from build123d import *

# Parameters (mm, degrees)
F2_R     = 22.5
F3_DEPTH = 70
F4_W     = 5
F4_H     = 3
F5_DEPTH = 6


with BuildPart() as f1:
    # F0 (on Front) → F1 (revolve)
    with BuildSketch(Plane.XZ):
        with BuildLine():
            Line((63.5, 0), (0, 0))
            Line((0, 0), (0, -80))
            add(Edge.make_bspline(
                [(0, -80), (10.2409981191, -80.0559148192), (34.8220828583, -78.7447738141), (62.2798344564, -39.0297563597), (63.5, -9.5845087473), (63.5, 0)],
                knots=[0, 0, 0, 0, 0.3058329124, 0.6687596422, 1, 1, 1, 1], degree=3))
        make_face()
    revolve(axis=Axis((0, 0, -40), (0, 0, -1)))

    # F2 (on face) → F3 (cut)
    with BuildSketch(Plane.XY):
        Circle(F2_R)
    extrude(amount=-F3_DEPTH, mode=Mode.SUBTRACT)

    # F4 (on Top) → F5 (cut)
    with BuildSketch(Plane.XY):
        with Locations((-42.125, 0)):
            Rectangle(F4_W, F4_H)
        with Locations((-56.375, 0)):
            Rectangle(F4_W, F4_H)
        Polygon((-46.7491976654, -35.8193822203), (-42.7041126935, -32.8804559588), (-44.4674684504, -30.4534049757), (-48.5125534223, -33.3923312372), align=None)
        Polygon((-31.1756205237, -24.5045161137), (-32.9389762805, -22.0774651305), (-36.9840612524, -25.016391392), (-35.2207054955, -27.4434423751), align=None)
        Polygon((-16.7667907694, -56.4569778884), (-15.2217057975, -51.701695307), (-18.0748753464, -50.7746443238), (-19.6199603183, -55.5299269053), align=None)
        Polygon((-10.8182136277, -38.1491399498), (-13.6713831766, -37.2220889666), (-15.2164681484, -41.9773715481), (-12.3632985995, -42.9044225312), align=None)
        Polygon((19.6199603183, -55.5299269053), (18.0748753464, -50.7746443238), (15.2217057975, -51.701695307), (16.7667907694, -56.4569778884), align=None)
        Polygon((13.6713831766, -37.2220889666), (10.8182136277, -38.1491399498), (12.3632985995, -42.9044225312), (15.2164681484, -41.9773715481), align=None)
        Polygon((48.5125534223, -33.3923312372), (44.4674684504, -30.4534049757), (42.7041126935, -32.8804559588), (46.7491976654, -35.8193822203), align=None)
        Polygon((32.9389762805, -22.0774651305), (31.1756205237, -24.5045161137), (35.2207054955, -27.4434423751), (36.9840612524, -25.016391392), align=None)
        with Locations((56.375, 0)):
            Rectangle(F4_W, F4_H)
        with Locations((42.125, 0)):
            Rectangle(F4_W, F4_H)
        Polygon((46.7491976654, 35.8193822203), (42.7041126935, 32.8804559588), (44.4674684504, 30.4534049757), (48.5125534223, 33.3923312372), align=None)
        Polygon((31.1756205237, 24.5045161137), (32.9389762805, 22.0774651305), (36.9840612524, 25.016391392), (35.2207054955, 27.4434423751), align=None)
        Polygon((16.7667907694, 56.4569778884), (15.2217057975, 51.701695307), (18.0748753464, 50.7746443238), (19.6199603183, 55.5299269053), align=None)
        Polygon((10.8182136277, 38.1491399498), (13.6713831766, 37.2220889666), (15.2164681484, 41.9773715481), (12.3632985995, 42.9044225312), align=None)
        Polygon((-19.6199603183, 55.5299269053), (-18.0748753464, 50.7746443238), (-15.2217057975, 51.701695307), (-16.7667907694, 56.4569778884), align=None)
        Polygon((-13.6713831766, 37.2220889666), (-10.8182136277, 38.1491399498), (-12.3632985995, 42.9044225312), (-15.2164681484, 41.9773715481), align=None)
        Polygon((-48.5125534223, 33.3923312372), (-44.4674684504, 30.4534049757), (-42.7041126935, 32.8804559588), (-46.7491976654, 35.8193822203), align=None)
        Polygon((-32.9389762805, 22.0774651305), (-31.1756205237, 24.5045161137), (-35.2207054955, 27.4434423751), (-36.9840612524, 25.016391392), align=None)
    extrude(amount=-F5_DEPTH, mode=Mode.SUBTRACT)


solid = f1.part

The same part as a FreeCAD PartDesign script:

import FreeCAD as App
import Part
import Sketcher
Q = App.Units.Quantity

doc = App.newDocument("Part")
body = doc.addObject("PartDesign::Body", "Body")

sketch1 = doc.addObject("Sketcher::SketchObject", "Sketch")
body.addObject(sketch1)
sketch1.AttachmentSupport = (doc.XZ_Plane, [""])
sketch1.MapMode = "FlatFace"
sketch1.addGeometry([
    Part.LineSegment(App.Vector(63.5, 0, 0), App.Vector(0, 0, 0)),
    Part.LineSegment(App.Vector(0, 0, 0), App.Vector(0, -80, 0)),
    Part.BSplineCurve([App.Vector(0, -80, 0), App.Vector(10.240998, -80.055915, 0), App.Vector(34.822083, -78.744774, 0), App.Vector(62.279834, -39.029756, 0), App.Vector(63.5, -9.584509, 0), App.Vector(63.5, 0, 0)], [4, 1, 1, 4], [0, 0.305832912, 0.668759642, 1], False, 3, [1, 1, 1, 1, 1, 1], False),
], False)
sketch1.addConstraint([
    Sketcher.Constraint("Block", 2),
    Sketcher.Constraint("Coincident", 0, 2, 1, 1),
    Sketcher.Constraint("Coincident", 1, 2, 2, 1),
    Sketcher.Constraint("Coincident", 2, 2, 0, 1),
    Sketcher.Constraint("Horizontal", 0),
    Sketcher.Constraint("Vertical", 1),
])
revolution = doc.addObject("PartDesign::Revolution", "Revolution")
body.addObject(revolution)
revolution.Profile = sketch1
revolution.ReferenceAxis = (sketch1, ["V_Axis"])
revolution.Angle = 360

sketch2 = doc.addObject("Sketcher::SketchObject", "Sketch001")
body.addObject(sketch2)
sketch2.AttachmentSupport = (doc.XY_Plane, [""])
sketch2.MapMode = "FlatFace"
sketch2.addGeometry(Part.Circle(App.Vector(0, 0, 0), App.Vector(0, 0, 1), 22), False)
sketch2.addConstraint([
    Sketcher.Constraint("Coincident", 0, 3, -1, 1),
    Sketcher.Constraint("Diameter", 0, Q("45 mm")),
])
pocket1 = doc.addObject("PartDesign::Pocket", "Pocket")
body.addObject(pocket1)
pocket1.Profile = sketch2
pocket1.Length = 70

sketch3 = doc.addObject("Sketcher::SketchObject", "Sketch002")
body.addObject(sketch3)
sketch3.AttachmentSupport = (doc.XY_Plane, [""])
sketch3.MapMode = "FlatFace"
sketch3.addGeometry([
    Part.LineSegment(App.Vector(-44.6, 1.5, 0), App.Vector(-44.6, -1.5, 0)),
    Part.LineSegment(App.Vector(-44.6, -1.5, 0), App.Vector(-39.6, -1.5, 0)),
    Part.LineSegment(App.Vector(-39.6, -1.5, 0), App.Vector(-39.6, 1.5, 0)),
    Part.LineSegment(App.Vector(-39.6, 1.5, 0), App.Vector(-44.6, 1.5, 0)),
    Part.LineSegment(App.Vector(-58.9, 1.5, 0), App.Vector(-58.9, -1.5, 0)),
    Part.LineSegment(App.Vector(-58.9, -1.5, 0), App.Vector(-53.9, -1.5, 0)),
    Part.LineSegment(App.Vector(-53.9, -1.5, 0), App.Vector(-53.9, 1.5, 0)),
    Part.LineSegment(App.Vector(-53.9, 1.5, 0), App.Vector(-58.9, 1.5, 0)),
    Part.LineSegment(App.Vector(-46.7, -35.8, 0), App.Vector(-42.7, -32.9, 0)),
    Part.LineSegment(App.Vector(-42.7, -32.9, 0), App.Vector(-44.5, -30.5, 0)),
    Part.LineSegment(App.Vector(-44.5, -30.5, 0), App.Vector(-48.5, -33.4, 0)),
    Part.LineSegment(App.Vector(-48.5, -33.4, 0), App.Vector(-46.7, -35.8, 0)),
    Part.LineSegment(App.Vector(-31.2, -24.5, 0), App.Vector(-32.9, -22.1, 0)),
    Part.LineSegment(App.Vector(-32.9, -22.1, 0), App.Vector(-37, -25, 0)),
    Part.LineSegment(App.Vector(-37, -25, 0), App.Vector(-35.2, -27.4, 0)),
    Part.LineSegment(App.Vector(-35.2, -27.4, 0), App.Vector(-31.2, -24.5, 0)),
    Part.LineSegment(App.Vector(-16.8, -56.5, 0), App.Vector(-15.2, -51.7, 0)),
    Part.LineSegment(App.Vector(-15.2, -51.7, 0), App.Vector(-18.1, -50.8, 0)),
    Part.LineSegment(App.Vector(-18.1, -50.8, 0), App.Vector(-19.6, -55.5, 0)),
    Part.LineSegment(App.Vector(-19.6, -55.5, 0), App.Vector(-16.8, -56.5, 0)),
    Part.LineSegment(App.Vector(-10.8, -38.1, 0), App.Vector(-13.7, -37.2, 0)),
    Part.LineSegment(App.Vector(-13.7, -37.2, 0), App.Vector(-15.2, -42, 0)),
    Part.LineSegment(App.Vector(-15.2, -42, 0), App.Vector(-12.4, -42.9, 0)),
    Part.LineSegment(App.Vector(-12.4, -42.9, 0), App.Vector(-10.8, -38.1, 0)),
    Part.LineSegment(App.Vector(19.6, -55.5, 0), App.Vector(18.1, -50.8, 0)),
    Part.LineSegment(App.Vector(18.1, -50.8, 0), App.Vector(15.2, -51.7, 0)),
    Part.LineSegment(App.Vector(15.2, -51.7, 0), App.Vector(16.8, -56.5, 0)),
    Part.LineSegment(App.Vector(16.8, -56.5, 0), App.Vector(19.6, -55.5, 0)),
    Part.LineSegment(App.Vector(13.7, -37.2, 0), App.Vector(10.8, -38.1, 0)),
    Part.LineSegment(App.Vector(10.8, -38.1, 0), App.Vector(12.4, -42.9, 0)),
    Part.LineSegment(App.Vector(12.4, -42.9, 0), App.Vector(15.2, -42, 0)),
    Part.LineSegment(App.Vector(15.2, -42, 0), App.Vector(13.7, -37.2, 0)),
    Part.LineSegment(App.Vector(48.5, -33.4, 0), App.Vector(44.5, -30.5, 0)),
    Part.LineSegment(App.Vector(44.5, -30.5, 0), App.Vector(42.7, -32.9, 0)),
    Part.LineSegment(App.Vector(42.7, -32.9, 0), App.Vector(46.7, -35.8, 0)),
    Part.LineSegment(App.Vector(46.7, -35.8, 0), App.Vector(48.5, -33.4, 0)),
    Part.LineSegment(App.Vector(32.9, -22.1, 0), App.Vector(31.2, -24.5, 0)),
    Part.LineSegment(App.Vector(31.2, -24.5, 0), App.Vector(35.2, -27.4, 0)),
    Part.LineSegment(App.Vector(35.2, -27.4, 0), App.Vector(37, -25, 0)),
    Part.LineSegment(App.Vector(37, -25, 0), App.Vector(32.9, -22.1, 0)),
    Part.LineSegment(App.Vector(53.9, 1.5, 0), App.Vector(53.9, -1.5, 0)),
    Part.LineSegment(App.Vector(53.9, -1.5, 0), App.Vector(58.9, -1.5, 0)),
    Part.LineSegment(App.Vector(58.9, -1.5, 0), App.Vector(58.9, 1.5, 0)),
    Part.LineSegment(App.Vector(58.9, 1.5, 0), App.Vector(53.9, 1.5, 0)),
    Part.LineSegment(App.Vector(39.6, 1.5, 0), App.Vector(39.6, -1.5, 0)),
    Part.LineSegment(App.Vector(39.6, -1.5, 0), App.Vector(44.6, -1.5, 0)),
    Part.LineSegment(App.Vector(44.6, -1.5, 0), App.Vector(44.6, 1.5, 0)),
    Part.LineSegment(App.Vector(44.6, 1.5, 0), App.Vector(39.6, 1.5, 0)),
    Part.LineSegment(App.Vector(46.7, 35.8, 0), App.Vector(42.7, 32.9, 0)),
    Part.LineSegment(App.Vector(42.7, 32.9, 0), App.Vector(44.5, 30.5, 0)),
    Part.LineSegment(App.Vector(44.5, 30.5, 0), App.Vector(48.5, 33.4, 0)),
    Part.LineSegment(App.Vector(48.5, 33.4, 0), App.Vector(46.7, 35.8, 0)),
    Part.LineSegment(App.Vector(31.2, 24.5, 0), App.Vector(32.9, 22.1, 0)),
    Part.LineSegment(App.Vector(32.9, 22.1, 0), App.Vector(37, 25, 0)),
    Part.LineSegment(App.Vector(37, 25, 0), App.Vector(35.2, 27.4, 0)),
    Part.LineSegment(App.Vector(35.2, 27.4, 0), App.Vector(31.2, 24.5, 0)),
    Part.LineSegment(App.Vector(16.8, 56.5, 0), App.Vector(15.2, 51.7, 0)),
    Part.LineSegment(App.Vector(15.2, 51.7, 0), App.Vector(18.1, 50.8, 0)),
    Part.LineSegment(App.Vector(18.1, 50.8, 0), App.Vector(19.6, 55.5, 0)),
    Part.LineSegment(App.Vector(19.6, 55.5, 0), App.Vector(16.8, 56.5, 0)),
    Part.LineSegment(App.Vector(10.8, 38.1, 0), App.Vector(13.7, 37.2, 0)),
    Part.LineSegment(App.Vector(13.7, 37.2, 0), App.Vector(15.2, 42, 0)),
    Part.LineSegment(App.Vector(15.2, 42, 0), App.Vector(12.4, 42.9, 0)),
    Part.LineSegment(App.Vector(12.4, 42.9, 0), App.Vector(10.8, 38.1, 0)),
    Part.LineSegment(App.Vector(-19.6, 55.5, 0), App.Vector(-18.1, 50.8, 0)),
    Part.LineSegment(App.Vector(-18.1, 50.8, 0), App.Vector(-15.2, 51.7, 0)),
    Part.LineSegment(App.Vector(-15.2, 51.7, 0), App.Vector(-16.8, 56.5, 0)),
    Part.LineSegment(App.Vector(-16.8, 56.5, 0), App.Vector(-19.6, 55.5, 0)),
    Part.LineSegment(App.Vector(-13.7, 37.2, 0), App.Vector(-10.8, 38.1, 0)),
    Part.LineSegment(App.Vector(-10.8, 38.1, 0), App.Vector(-12.4, 42.9, 0)),
    Part.LineSegment(App.Vector(-12.4, 42.9, 0), App.Vector(-15.2, 42, 0)),
    Part.LineSegment(App.Vector(-15.2, 42, 0), App.Vector(-13.7, 37.2, 0)),
    Part.LineSegment(App.Vector(-48.5, 33.4, 0), App.Vector(-44.5, 30.5, 0)),
    Part.LineSegment(App.Vector(-44.5, 30.5, 0), App.Vector(-42.7, 32.9, 0)),
    Part.LineSegment(App.Vector(-42.7, 32.9, 0), App.Vector(-46.7, 35.8, 0)),
    Part.LineSegment(App.Vector(-46.7, 35.8, 0), App.Vector(-48.5, 33.4, 0)),
    Part.LineSegment(App.Vector(-32.9, 22.1, 0), App.Vector(-31.2, 24.5, 0)),
    Part.LineSegment(App.Vector(-31.2, 24.5, 0), App.Vector(-35.2, 27.4, 0)),
    Part.LineSegment(App.Vector(-35.2, 27.4, 0), App.Vector(-37, 25, 0)),
    Part.LineSegment(App.Vector(-37, 25, 0), App.Vector(-32.9, 22.1, 0)),
], False)
sketch3.addConstraint([
    Sketcher.Constraint("Coincident", 0, 2, 1, 1),
    Sketcher.Constraint("Coincident", 1, 2, 2, 1),
    Sketcher.Constraint("Coincident", 2, 2, 3, 1),
    Sketcher.Constraint("Coincident", 3, 2, 0, 1),
    Sketcher.Constraint("Coincident", 4, 2, 5, 1),
    Sketcher.Constraint("Coincident", 5, 2, 6, 1),
    Sketcher.Constraint("Coincident", 6, 2, 7, 1),
    Sketcher.Constraint("Coincident", 7, 2, 4, 1),
    Sketcher.Constraint("Coincident", 8, 2, 9, 1),
    Sketcher.Constraint("Coincident", 9, 2, 10, 1),
    Sketcher.Constraint("Coincident", 10, 2, 11, 1),
    Sketcher.Constraint("Coincident", 11, 2, 8, 1),
    Sketcher.Constraint("Coincident", 12, 2, 13, 1),
    Sketcher.Constraint("Coincident", 13, 2, 14, 1),
    Sketcher.Constraint("Coincident", 14, 2, 15, 1),
    Sketcher.Constraint("Coincident", 15, 2, 12, 1),
    Sketcher.Constraint("Coincident", 16, 2, 17, 1),
    Sketcher.Constraint("Coincident", 17, 2, 18, 1),
    Sketcher.Constraint("Coincident", 18, 2, 19, 1),
    Sketcher.Constraint("Coincident", 19, 2, 16, 1),
    Sketcher.Constraint("Coincident", 20, 2, 21, 1),
    Sketcher.Constraint("Coincident", 21, 2, 22, 1),
    Sketcher.Constraint("Coincident", 22, 2, 23, 1),
    Sketcher.Constraint("Coincident", 23, 2, 20, 1),
    Sketcher.Constraint("Coincident", 24, 2, 25, 1),
    Sketcher.Constraint("Coincident", 25, 2, 26, 1),
    Sketcher.Constraint("Coincident", 26, 2, 27, 1),
    Sketcher.Constraint("Coincident", 27, 2, 24, 1),
    Sketcher.Constraint("Coincident", 28, 2, 29, 1),
    Sketcher.Constraint("Coincident", 29, 2, 30, 1),
    Sketcher.Constraint("Coincident", 30, 2, 31, 1),
    Sketcher.Constraint("Coincident", 31, 2, 28, 1),
    Sketcher.Constraint("Coincident", 32, 2, 33, 1),
    Sketcher.Constraint("Coincident", 33, 2, 34, 1),
    Sketcher.Constraint("Coincident", 34, 2, 35, 1),
    Sketcher.Constraint("Coincident", 35, 2, 32, 1),
    Sketcher.Constraint("Coincident", 36, 2, 37, 1),
    Sketcher.Constraint("Coincident", 37, 2, 38, 1),
    Sketcher.Constraint("Coincident", 38, 2, 39, 1),
    Sketcher.Constraint("Coincident", 39, 2, 36, 1),
    Sketcher.Constraint("Coincident", 40, 2, 41, 1),
    Sketcher.Constraint("Coincident", 41, 2, 42, 1),
    Sketcher.Constraint("Coincident", 42, 2, 43, 1),
    Sketcher.Constraint("Coincident", 43, 2, 40, 1),
    Sketcher.Constraint("Coincident", 44, 2, 45, 1),
    Sketcher.Constraint("Coincident", 45, 2, 46, 1),
    Sketcher.Constraint("Coincident", 46, 2, 47, 1),
    Sketcher.Constraint("Coincident", 47, 2, 44, 1),
    Sketcher.Constraint("Coincident", 48, 2, 49, 1),
    Sketcher.Constraint("Coincident", 49, 2, 50, 1),
    Sketcher.Constraint("Coincident", 50, 2, 51, 1),
    Sketcher.Constraint("Coincident", 51, 2, 48, 1),
    Sketcher.Constraint("Coincident", 52, 2, 53, 1),
    Sketcher.Constraint("Coincident", 53, 2, 54, 1),
    Sketcher.Constraint("Coincident", 54, 2, 55, 1),
    Sketcher.Constraint("Coincident", 55, 2, 52, 1),
    Sketcher.Constraint("Coincident", 56, 2, 57, 1),
    Sketcher.Constraint("Coincident", 57, 2, 58, 1),
    Sketcher.Constraint("Coincident", 58, 2, 59, 1),
    Sketcher.Constraint("Coincident", 59, 2, 56, 1),
    Sketcher.Constraint("Coincident", 60, 2, 61, 1),
    Sketcher.Constraint("Coincident", 61, 2, 62, 1),
    Sketcher.Constraint("Coincident", 62, 2, 63, 1),
    Sketcher.Constraint("Coincident", 63, 2, 60, 1),
    Sketcher.Constraint("Coincident", 64, 2, 65, 1),
    Sketcher.Constraint("Coincident", 65, 2, 66, 1),
    Sketcher.Constraint("Coincident", 66, 2, 67, 1),
    Sketcher.Constraint("Coincident", 67, 2, 64, 1),
    Sketcher.Constraint("Coincident", 68, 2, 69, 1),
    Sketcher.Constraint("Coincident", 69, 2, 70, 1),
    Sketcher.Constraint("Coincident", 70, 2, 71, 1),
    Sketcher.Constraint("Coincident", 71, 2, 68, 1),
    Sketcher.Constraint("Coincident", 72, 2, 73, 1),
    Sketcher.Constraint("Coincident", 73, 2, 74, 1),
    Sketcher.Constraint("Coincident", 74, 2, 75, 1),
    Sketcher.Constraint("Coincident", 75, 2, 72, 1),
    Sketcher.Constraint("Coincident", 76, 2, 77, 1),
    Sketcher.Constraint("Coincident", 77, 2, 78, 1),
    Sketcher.Constraint("Coincident", 78, 2, 79, 1),
    Sketcher.Constraint("Coincident", 79, 2, 76, 1),
    Sketcher.Constraint("Vertical", 0),
    Sketcher.Constraint("Horizontal", 1),
    Sketcher.Constraint("Vertical", 2),
    Sketcher.Constraint("Horizontal", 3),
    Sketcher.Constraint("Vertical", 4),
    Sketcher.Constraint("Horizontal", 5),
    Sketcher.Constraint("Vertical", 6),
    Sketcher.Constraint("Horizontal", 7),
    Sketcher.Constraint("Vertical", 40),
    Sketcher.Constraint("Horizontal", 41),
    Sketcher.Constraint("Vertical", 42),
    Sketcher.Constraint("Horizontal", 43),
    Sketcher.Constraint("Vertical", 44),
    Sketcher.Constraint("Horizontal", 45),
    Sketcher.Constraint("Vertical", 46),
    Sketcher.Constraint("Horizontal", 47),
    Sketcher.Constraint("Symmetric", 6, 2, 40, 2, -1, 1),
    Sketcher.Constraint("Symmetric", 4, 2, 42, 2, -1, 1),
    Sketcher.Constraint("Symmetric", 2, 2, 44, 2, -1, 1),
    Sketcher.Constraint("Symmetric", 0, 2, 46, 2, -1, 1),
    Sketcher.Constraint("Symmetric", 8, 2, 48, 2, -1, 1),
    Sketcher.Constraint("Symmetric", 9, 2, 49, 2, -1, 1),
    Sketcher.Constraint("Symmetric", 10, 2, 50, 2, -1, 1),
    Sketcher.Constraint("Symmetric", 11, 2, 51, 2, -1, 1),
    Sketcher.Constraint("Symmetric", 12, 2, 52, 2, -1, 1),
    Sketcher.Constraint("Symmetric", 13, 2, 53, 2, -1, 1),
    Sketcher.Constraint("Symmetric", 14, 2, 54, 2, -1, 1),
    Sketcher.Constraint("Symmetric", 15, 2, 55, 2, -1, 1),
    Sketcher.Constraint("Symmetric", 16, 2, 56, 2, -1, 1),
    Sketcher.Constraint("Symmetric", 17, 2, 57, 2, -1, 1),
    Sketcher.Constraint("Symmetric", 18, 2, 58, 2, -1, 1),
    Sketcher.Constraint("Symmetric", 19, 2, 59, 2, -1, 1),
    Sketcher.Constraint("Symmetric", 20, 2, 60, 2, -1, 1),
    Sketcher.Constraint("Symmetric", 21, 2, 61, 2, -1, 1),
    Sketcher.Constraint("Symmetric", 22, 2, 62, 2, -1, 1),
    Sketcher.Constraint("Symmetric", 23, 2, 63, 2, -1, 1),
    Sketcher.Constraint("Symmetric", 24, 2, 64, 2, -1, 1),
    Sketcher.Constraint("Symmetric", 25, 2, 65, 2, -1, 1),
    Sketcher.Constraint("Symmetric", 26, 2, 66, 2, -1, 1),
    Sketcher.Constraint("Symmetric", 27, 2, 67, 2, -1, 1),
    Sketcher.Constraint("Symmetric", 28, 2, 68, 2, -1, 1),
    Sketcher.Constraint("Symmetric", 29, 2, 69, 2, -1, 1),
    Sketcher.Constraint("Symmetric", 30, 2, 70, 2, -1, 1),
    Sketcher.Constraint("Symmetric", 31, 2, 71, 2, -1, 1),
    Sketcher.Constraint("Symmetric", 32, 2, 72, 2, -1, 1),
    Sketcher.Constraint("Symmetric", 33, 2, 73, 2, -1, 1),
    Sketcher.Constraint("Symmetric", 34, 2, 74, 2, -1, 1),
    Sketcher.Constraint("Symmetric", 35, 2, 75, 2, -1, 1),
    Sketcher.Constraint("Symmetric", 36, 2, 76, 2, -1, 1),
    Sketcher.Constraint("Symmetric", 37, 2, 77, 2, -1, 1),
    Sketcher.Constraint("Symmetric", 38, 2, 78, 2, -1, 1),
    Sketcher.Constraint("Symmetric", 39, 2, 79, 2, -1, 1),
    Sketcher.Constraint("Symmetric", 17, 2, 24, 2, -2),
    Sketcher.Constraint("Symmetric", 16, 2, 25, 2, -2),
    Sketcher.Constraint("Symmetric", 19, 2, 26, 2, -2),
    Sketcher.Constraint("Symmetric", 18, 2, 27, 2, -2),
    Sketcher.Constraint("Symmetric", 23, 2, 28, 2, -2),
    Sketcher.Constraint("Symmetric", 22, 2, 29, 2, -2),
    Sketcher.Constraint("Symmetric", 21, 2, 30, 2, -2),
    Sketcher.Constraint("Symmetric", 20, 2, 31, 2, -2),
    Sketcher.Constraint("Symmetric", 9, 2, 32, 2, -2),
    Sketcher.Constraint("Symmetric", 8, 2, 33, 2, -2),
    Sketcher.Constraint("Symmetric", 11, 2, 34, 2, -2),
    Sketcher.Constraint("Symmetric", 10, 2, 35, 2, -2),
    Sketcher.Constraint("Symmetric", 15, 2, 36, 2, -2),
    Sketcher.Constraint("Symmetric", 14, 2, 37, 2, -2),
    Sketcher.Constraint("Symmetric", 13, 2, 38, 2, -2),
    Sketcher.Constraint("Symmetric", 12, 2, 39, 2, -2),
    Sketcher.Constraint("Perpendicular", 8, 9),
    Sketcher.Constraint("Perpendicular", 9, 10),
    Sketcher.Constraint("Perpendicular", 10, 11),
    Sketcher.Constraint("Parallel", 11, 12),
    Sketcher.Constraint("Perpendicular", 12, 13),
    Sketcher.Constraint("Perpendicular", 13, 14),
    Sketcher.Constraint("Perpendicular", 14, 15),
    Sketcher.Constraint("Perpendicular", 16, 17),
    Sketcher.Constraint("Perpendicular", 17, 18),
    Sketcher.Constraint("Perpendicular", 18, 19),
    Sketcher.Constraint("Parallel", 19, 20),
    Sketcher.Constraint("Perpendicular", 20, 21),
    Sketcher.Constraint("Perpendicular", 21, 22),
    Sketcher.Constraint("Perpendicular", 22, 23),
    Sketcher.Constraint("Horizontal", 1, 2, 4, 2),
    Sketcher.Constraint("Horizontal", 3, 2, 6, 2),
    Sketcher.Constraint("Horizontal", 5, 2, 40, 2),
    Sketcher.Constraint("Equal", 3, 5),
    Sketcher.Constraint("Equal", 11, 12),
    Sketcher.Constraint("Equal", 10, 13),
    Sketcher.Constraint("Equal", 15, 16),
    Sketcher.Constraint("Equal", 14, 17),
    Sketcher.Constraint("Equal", 19, 20),
    Sketcher.Constraint("Equal", 18, 21),
    Sketcher.Constraint("DistanceX", 1, 1, 1, 2, Q("5 mm")),
    Sketcher.Constraint("DistanceY", 0, 2, 0, 1, Q("3 mm")),
    Sketcher.Constraint("Angle", 8, Q("36 deg")),
    Sketcher.Constraint("Angle", 16, Q("72 deg")),
    Sketcher.Constraint("Distance", 8, Q("5 mm")),
    Sketcher.Constraint("Distance", 9, Q("3 mm")),
    Sketcher.Constraint("DistanceX", 0, 2, -1, 1, Q("44.625 mm")),
    Sketcher.Constraint("DistanceX", 4, 2, -1, 1, Q("58.875 mm")),
    Sketcher.Constraint("DistanceX", 22, 2, -1, 1, Q("12.363299 mm")),
    Sketcher.Constraint("DistanceX", 9, 2, -1, 1, Q("44.467468 mm")),
    Sketcher.Constraint("DistanceY", 10, 2, -1, 1, Q("33.392331 mm")),
    Sketcher.Constraint("DistanceX", 13, 2, -1, 1, Q("36.984061 mm")),
    Sketcher.Constraint("DistanceY", 13, 2, -1, 1, Q("25.016391 mm")),
    Sketcher.Constraint("DistanceX", 18, 2, -1, 1, Q("19.61996 mm")),
    Sketcher.Constraint("DistanceY", 20, 2, -1, 1, Q("37.222089 mm")),
    Sketcher.Constraint("DistanceY", 16, 2, -1, 1, Q("51.701695 mm")),
])
pocket2 = doc.addObject("PartDesign::Pocket", "Pocket001")
body.addObject(pocket2)
pocket2.Profile = sketch3
pocket2.Length = 6

doc.recompute()
